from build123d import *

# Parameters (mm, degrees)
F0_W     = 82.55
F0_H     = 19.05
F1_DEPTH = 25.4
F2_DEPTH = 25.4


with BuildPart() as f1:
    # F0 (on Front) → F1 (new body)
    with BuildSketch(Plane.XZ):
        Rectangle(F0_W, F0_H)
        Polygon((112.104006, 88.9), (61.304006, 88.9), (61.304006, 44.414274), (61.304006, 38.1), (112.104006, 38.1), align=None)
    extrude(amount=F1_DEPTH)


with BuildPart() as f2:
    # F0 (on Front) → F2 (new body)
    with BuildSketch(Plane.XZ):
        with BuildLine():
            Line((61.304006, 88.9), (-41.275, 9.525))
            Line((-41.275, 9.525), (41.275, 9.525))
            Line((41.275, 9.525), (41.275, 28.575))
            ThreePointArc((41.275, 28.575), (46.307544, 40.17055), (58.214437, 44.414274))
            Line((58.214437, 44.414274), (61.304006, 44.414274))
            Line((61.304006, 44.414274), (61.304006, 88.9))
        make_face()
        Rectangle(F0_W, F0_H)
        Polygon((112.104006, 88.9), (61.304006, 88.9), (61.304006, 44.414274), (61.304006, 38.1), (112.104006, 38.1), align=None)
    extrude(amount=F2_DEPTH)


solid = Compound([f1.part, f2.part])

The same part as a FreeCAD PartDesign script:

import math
import FreeCAD as App
import Part
import Sketcher
from FreeCAD import Vector
Q = App.Units.Quantity


def add_polygon(sketch, points):
    """Adds a closed chain of lines whose ends are joined by coincident constraints."""
    first, n = sketch.GeometryCount, len(points)
    for a, b in zip(points, points[1:] + points[:1]):
        sketch.addGeometry(Part.LineSegment(App.Vector(*a, 0), App.Vector(*b, 0)), False)
    for i in range(n):
        sketch.addConstraint(Sketcher.Constraint("Coincident", first + i, 2, first + (i + 1) % n, 1))

doc = App.newDocument("Part")
body = doc.addObject("PartDesign::Body", "Body")
body.AllowCompound = True

# Sketch on XZ plane
sketch1 = doc.addObject("Sketcher::SketchObject", "Sketch")
body.addObject(sketch1)
sketch1.AttachmentSupport = (doc.XZ_Plane, [""])
sketch1.MapMode = "FlatFace"
add_polygon(sketch1, [(-41, 10), (-41, -10), (41, -10), (41, 10)])  # lines 0-3
add_polygon(sketch1, [(112, 89), (61, 89), (61, 38), (112, 38)])  # lines 4-7
sketch1.addConstraint([
    Sketcher.Constraint("Vertical", 0),
    Sketcher.Constraint("Horizontal", 1),
    Sketcher.Constraint("Vertical", 2),
    Sketcher.Constraint("Horizontal", 3),
    Sketcher.Constraint("Horizontal", 4),
    Sketcher.Constraint("Vertical", 5),
    Sketcher.Constraint("Horizontal", 6),
    Sketcher.Constraint("Vertical", 7),
    Sketcher.Constraint("Symmetric", 0, 2, 2, 2, -1, 1),
    Sketcher.Constraint("Equal", 6, 5),
    Sketcher.Constraint("DistanceX", 4, 2, 4, 1, Q("2 in")),
    Sketcher.Constraint("DistanceX", 1, 1, 1, 2, Q("3.25 in")),
    Sketcher.Constraint("DistanceY", 0, 2, 0, 1, Q("0.75 in")),
    Sketcher.Constraint("DistanceY", -1, 1, 4, 2, Q("3.5 in")),
    Sketcher.Constraint("DistanceX", -1, 1, 4, 2, 61.304006),
])
pad1 = doc.addObject("PartDesign::Pad", "Pad")
body.addObject(pad1)
pad1.Profile = sketch1
pad1.Length = Q("1 in")
body2 = doc.addObject("PartDesign::Body", "Body001")

# Sketch on XZ plane
sketch2 = doc.addObject("Sketcher::SketchObject", "Sketch001")
body2.addObject(sketch2)
sketch2.AttachmentSupport = (doc.getObject("XZ_Plane001"), [""])
sketch2.MapMode = "FlatFace"
sketch2.addGeometry([
    Part.LineSegment(Vector(61.3, 88.9, 0), Vector(-41.3, 9.5, 0)),  # 0
    Part.LineSegment(Vector(-41.3, 9.5, 0), Vector(-41.3, -9.5, 0)),  # 1
    Part.LineSegment(Vector(-41.3, -9.5, 0), Vector(41.3, -9.5, 0)),  # 2
    Part.LineSegment(Vector(41.3, -9.5, 0), Vector(41.3, 28.6, 0)),  # 3
    Part.ArcOfCircle(Part.Circle(Vector(57.1, 28.6, 0), Vector(0, 0, 1), 15.9), math.radians(86), math.radians(180)),  # 4
    Part.LineSegment(Vector(58.2, 44.4, 0), Vector(61.3, 44.4, 0)),  # 5
    Part.LineSegment(Vector(61.3, 44.4, 0), Vector(61.3, 38.1, 0)),  # 6
    Part.LineSegment(Vector(61.3, 38.1, 0), Vector(112.1, 38.1, 0)),  # 7
    Part.LineSegment(Vector(112.1, 38.1, 0), Vector(112.1, 88.9, 0)),  # 8
    Part.LineSegment(Vector(112.1, 88.9, 0), Vector(61.3, 88.9, 0)),  # 9
], False)
sketch2.addConstraint([
    Sketcher.Constraint("Coincident", 0, 2, 1, 1),
    Sketcher.Constraint("Coincident", 1, 2, 2, 1),
    Sketcher.Constraint("Coincident", 2, 2, 3, 1),
    Sketcher.Constraint("Tangent", 3, 2, 4, 2),
    Sketcher.Constraint("Coincident", 4, 1, 5, 1),
    Sketcher.Constraint("Coincident", 5, 2, 6, 1),
    Sketcher.Constraint("Coincident", 6, 2, 7, 1),
    Sketcher.Constraint("Coincident", 7, 2, 8, 1),
    Sketcher.Constraint("Coincident", 8, 2, 9, 1),
    Sketcher.Constraint("Coincident", 9, 2, 0, 1),
    Sketcher.Constraint("Vertical", 1),
    Sketcher.Constraint("Horizontal", 2),
    Sketcher.Constraint("Vertical", 3),
    Sketcher.Constraint("Horizontal", 5),
    Sketcher.Constraint("Vertical", 6),
    Sketcher.Constraint("Horizontal", 7),
    Sketcher.Constraint("Vertical", 8),
    Sketcher.Constraint("Horizontal", 9),
    Sketcher.Constraint("Symmetric", 0, 2, 2, 2, -1, 1),
    Sketcher.Constraint("Vertical", 6, 2, 9, 2),
    Sketcher.Constraint("Equal", 9, 8),
    Sketcher.Constraint("DistanceX", 7, 1, 7, 2, Q("2 in")),
    Sketcher.Constraint("DistanceY", 3, 1, 3, 2, Q("1.5 in")),
    Sketcher.Constraint("Radius", 4, Q("0.625 in")),
    Sketcher.Constraint("DistanceX", 2, 1, 2, 2, Q("3.25 in")),
    Sketcher.Constraint("DistanceY", 1, 2, 1, 1, Q("0.75 in")),
    Sketcher.Constraint("DistanceY", -1, 1, 6, 2, Q("1.5 in")),
    Sketcher.Constraint("DistanceX", 5, 1, 5, 2, 3.089569),
    Sketcher.Constraint("DistanceY", 6, 2, 6, 1, 6.314274),
])
pad2 = doc.addObject("PartDesign::Pad", "Pad001")
body2.addObject(pad2)
pad2.Profile = sketch2
pad2.Length = Q("1 in")

doc.recompute()
